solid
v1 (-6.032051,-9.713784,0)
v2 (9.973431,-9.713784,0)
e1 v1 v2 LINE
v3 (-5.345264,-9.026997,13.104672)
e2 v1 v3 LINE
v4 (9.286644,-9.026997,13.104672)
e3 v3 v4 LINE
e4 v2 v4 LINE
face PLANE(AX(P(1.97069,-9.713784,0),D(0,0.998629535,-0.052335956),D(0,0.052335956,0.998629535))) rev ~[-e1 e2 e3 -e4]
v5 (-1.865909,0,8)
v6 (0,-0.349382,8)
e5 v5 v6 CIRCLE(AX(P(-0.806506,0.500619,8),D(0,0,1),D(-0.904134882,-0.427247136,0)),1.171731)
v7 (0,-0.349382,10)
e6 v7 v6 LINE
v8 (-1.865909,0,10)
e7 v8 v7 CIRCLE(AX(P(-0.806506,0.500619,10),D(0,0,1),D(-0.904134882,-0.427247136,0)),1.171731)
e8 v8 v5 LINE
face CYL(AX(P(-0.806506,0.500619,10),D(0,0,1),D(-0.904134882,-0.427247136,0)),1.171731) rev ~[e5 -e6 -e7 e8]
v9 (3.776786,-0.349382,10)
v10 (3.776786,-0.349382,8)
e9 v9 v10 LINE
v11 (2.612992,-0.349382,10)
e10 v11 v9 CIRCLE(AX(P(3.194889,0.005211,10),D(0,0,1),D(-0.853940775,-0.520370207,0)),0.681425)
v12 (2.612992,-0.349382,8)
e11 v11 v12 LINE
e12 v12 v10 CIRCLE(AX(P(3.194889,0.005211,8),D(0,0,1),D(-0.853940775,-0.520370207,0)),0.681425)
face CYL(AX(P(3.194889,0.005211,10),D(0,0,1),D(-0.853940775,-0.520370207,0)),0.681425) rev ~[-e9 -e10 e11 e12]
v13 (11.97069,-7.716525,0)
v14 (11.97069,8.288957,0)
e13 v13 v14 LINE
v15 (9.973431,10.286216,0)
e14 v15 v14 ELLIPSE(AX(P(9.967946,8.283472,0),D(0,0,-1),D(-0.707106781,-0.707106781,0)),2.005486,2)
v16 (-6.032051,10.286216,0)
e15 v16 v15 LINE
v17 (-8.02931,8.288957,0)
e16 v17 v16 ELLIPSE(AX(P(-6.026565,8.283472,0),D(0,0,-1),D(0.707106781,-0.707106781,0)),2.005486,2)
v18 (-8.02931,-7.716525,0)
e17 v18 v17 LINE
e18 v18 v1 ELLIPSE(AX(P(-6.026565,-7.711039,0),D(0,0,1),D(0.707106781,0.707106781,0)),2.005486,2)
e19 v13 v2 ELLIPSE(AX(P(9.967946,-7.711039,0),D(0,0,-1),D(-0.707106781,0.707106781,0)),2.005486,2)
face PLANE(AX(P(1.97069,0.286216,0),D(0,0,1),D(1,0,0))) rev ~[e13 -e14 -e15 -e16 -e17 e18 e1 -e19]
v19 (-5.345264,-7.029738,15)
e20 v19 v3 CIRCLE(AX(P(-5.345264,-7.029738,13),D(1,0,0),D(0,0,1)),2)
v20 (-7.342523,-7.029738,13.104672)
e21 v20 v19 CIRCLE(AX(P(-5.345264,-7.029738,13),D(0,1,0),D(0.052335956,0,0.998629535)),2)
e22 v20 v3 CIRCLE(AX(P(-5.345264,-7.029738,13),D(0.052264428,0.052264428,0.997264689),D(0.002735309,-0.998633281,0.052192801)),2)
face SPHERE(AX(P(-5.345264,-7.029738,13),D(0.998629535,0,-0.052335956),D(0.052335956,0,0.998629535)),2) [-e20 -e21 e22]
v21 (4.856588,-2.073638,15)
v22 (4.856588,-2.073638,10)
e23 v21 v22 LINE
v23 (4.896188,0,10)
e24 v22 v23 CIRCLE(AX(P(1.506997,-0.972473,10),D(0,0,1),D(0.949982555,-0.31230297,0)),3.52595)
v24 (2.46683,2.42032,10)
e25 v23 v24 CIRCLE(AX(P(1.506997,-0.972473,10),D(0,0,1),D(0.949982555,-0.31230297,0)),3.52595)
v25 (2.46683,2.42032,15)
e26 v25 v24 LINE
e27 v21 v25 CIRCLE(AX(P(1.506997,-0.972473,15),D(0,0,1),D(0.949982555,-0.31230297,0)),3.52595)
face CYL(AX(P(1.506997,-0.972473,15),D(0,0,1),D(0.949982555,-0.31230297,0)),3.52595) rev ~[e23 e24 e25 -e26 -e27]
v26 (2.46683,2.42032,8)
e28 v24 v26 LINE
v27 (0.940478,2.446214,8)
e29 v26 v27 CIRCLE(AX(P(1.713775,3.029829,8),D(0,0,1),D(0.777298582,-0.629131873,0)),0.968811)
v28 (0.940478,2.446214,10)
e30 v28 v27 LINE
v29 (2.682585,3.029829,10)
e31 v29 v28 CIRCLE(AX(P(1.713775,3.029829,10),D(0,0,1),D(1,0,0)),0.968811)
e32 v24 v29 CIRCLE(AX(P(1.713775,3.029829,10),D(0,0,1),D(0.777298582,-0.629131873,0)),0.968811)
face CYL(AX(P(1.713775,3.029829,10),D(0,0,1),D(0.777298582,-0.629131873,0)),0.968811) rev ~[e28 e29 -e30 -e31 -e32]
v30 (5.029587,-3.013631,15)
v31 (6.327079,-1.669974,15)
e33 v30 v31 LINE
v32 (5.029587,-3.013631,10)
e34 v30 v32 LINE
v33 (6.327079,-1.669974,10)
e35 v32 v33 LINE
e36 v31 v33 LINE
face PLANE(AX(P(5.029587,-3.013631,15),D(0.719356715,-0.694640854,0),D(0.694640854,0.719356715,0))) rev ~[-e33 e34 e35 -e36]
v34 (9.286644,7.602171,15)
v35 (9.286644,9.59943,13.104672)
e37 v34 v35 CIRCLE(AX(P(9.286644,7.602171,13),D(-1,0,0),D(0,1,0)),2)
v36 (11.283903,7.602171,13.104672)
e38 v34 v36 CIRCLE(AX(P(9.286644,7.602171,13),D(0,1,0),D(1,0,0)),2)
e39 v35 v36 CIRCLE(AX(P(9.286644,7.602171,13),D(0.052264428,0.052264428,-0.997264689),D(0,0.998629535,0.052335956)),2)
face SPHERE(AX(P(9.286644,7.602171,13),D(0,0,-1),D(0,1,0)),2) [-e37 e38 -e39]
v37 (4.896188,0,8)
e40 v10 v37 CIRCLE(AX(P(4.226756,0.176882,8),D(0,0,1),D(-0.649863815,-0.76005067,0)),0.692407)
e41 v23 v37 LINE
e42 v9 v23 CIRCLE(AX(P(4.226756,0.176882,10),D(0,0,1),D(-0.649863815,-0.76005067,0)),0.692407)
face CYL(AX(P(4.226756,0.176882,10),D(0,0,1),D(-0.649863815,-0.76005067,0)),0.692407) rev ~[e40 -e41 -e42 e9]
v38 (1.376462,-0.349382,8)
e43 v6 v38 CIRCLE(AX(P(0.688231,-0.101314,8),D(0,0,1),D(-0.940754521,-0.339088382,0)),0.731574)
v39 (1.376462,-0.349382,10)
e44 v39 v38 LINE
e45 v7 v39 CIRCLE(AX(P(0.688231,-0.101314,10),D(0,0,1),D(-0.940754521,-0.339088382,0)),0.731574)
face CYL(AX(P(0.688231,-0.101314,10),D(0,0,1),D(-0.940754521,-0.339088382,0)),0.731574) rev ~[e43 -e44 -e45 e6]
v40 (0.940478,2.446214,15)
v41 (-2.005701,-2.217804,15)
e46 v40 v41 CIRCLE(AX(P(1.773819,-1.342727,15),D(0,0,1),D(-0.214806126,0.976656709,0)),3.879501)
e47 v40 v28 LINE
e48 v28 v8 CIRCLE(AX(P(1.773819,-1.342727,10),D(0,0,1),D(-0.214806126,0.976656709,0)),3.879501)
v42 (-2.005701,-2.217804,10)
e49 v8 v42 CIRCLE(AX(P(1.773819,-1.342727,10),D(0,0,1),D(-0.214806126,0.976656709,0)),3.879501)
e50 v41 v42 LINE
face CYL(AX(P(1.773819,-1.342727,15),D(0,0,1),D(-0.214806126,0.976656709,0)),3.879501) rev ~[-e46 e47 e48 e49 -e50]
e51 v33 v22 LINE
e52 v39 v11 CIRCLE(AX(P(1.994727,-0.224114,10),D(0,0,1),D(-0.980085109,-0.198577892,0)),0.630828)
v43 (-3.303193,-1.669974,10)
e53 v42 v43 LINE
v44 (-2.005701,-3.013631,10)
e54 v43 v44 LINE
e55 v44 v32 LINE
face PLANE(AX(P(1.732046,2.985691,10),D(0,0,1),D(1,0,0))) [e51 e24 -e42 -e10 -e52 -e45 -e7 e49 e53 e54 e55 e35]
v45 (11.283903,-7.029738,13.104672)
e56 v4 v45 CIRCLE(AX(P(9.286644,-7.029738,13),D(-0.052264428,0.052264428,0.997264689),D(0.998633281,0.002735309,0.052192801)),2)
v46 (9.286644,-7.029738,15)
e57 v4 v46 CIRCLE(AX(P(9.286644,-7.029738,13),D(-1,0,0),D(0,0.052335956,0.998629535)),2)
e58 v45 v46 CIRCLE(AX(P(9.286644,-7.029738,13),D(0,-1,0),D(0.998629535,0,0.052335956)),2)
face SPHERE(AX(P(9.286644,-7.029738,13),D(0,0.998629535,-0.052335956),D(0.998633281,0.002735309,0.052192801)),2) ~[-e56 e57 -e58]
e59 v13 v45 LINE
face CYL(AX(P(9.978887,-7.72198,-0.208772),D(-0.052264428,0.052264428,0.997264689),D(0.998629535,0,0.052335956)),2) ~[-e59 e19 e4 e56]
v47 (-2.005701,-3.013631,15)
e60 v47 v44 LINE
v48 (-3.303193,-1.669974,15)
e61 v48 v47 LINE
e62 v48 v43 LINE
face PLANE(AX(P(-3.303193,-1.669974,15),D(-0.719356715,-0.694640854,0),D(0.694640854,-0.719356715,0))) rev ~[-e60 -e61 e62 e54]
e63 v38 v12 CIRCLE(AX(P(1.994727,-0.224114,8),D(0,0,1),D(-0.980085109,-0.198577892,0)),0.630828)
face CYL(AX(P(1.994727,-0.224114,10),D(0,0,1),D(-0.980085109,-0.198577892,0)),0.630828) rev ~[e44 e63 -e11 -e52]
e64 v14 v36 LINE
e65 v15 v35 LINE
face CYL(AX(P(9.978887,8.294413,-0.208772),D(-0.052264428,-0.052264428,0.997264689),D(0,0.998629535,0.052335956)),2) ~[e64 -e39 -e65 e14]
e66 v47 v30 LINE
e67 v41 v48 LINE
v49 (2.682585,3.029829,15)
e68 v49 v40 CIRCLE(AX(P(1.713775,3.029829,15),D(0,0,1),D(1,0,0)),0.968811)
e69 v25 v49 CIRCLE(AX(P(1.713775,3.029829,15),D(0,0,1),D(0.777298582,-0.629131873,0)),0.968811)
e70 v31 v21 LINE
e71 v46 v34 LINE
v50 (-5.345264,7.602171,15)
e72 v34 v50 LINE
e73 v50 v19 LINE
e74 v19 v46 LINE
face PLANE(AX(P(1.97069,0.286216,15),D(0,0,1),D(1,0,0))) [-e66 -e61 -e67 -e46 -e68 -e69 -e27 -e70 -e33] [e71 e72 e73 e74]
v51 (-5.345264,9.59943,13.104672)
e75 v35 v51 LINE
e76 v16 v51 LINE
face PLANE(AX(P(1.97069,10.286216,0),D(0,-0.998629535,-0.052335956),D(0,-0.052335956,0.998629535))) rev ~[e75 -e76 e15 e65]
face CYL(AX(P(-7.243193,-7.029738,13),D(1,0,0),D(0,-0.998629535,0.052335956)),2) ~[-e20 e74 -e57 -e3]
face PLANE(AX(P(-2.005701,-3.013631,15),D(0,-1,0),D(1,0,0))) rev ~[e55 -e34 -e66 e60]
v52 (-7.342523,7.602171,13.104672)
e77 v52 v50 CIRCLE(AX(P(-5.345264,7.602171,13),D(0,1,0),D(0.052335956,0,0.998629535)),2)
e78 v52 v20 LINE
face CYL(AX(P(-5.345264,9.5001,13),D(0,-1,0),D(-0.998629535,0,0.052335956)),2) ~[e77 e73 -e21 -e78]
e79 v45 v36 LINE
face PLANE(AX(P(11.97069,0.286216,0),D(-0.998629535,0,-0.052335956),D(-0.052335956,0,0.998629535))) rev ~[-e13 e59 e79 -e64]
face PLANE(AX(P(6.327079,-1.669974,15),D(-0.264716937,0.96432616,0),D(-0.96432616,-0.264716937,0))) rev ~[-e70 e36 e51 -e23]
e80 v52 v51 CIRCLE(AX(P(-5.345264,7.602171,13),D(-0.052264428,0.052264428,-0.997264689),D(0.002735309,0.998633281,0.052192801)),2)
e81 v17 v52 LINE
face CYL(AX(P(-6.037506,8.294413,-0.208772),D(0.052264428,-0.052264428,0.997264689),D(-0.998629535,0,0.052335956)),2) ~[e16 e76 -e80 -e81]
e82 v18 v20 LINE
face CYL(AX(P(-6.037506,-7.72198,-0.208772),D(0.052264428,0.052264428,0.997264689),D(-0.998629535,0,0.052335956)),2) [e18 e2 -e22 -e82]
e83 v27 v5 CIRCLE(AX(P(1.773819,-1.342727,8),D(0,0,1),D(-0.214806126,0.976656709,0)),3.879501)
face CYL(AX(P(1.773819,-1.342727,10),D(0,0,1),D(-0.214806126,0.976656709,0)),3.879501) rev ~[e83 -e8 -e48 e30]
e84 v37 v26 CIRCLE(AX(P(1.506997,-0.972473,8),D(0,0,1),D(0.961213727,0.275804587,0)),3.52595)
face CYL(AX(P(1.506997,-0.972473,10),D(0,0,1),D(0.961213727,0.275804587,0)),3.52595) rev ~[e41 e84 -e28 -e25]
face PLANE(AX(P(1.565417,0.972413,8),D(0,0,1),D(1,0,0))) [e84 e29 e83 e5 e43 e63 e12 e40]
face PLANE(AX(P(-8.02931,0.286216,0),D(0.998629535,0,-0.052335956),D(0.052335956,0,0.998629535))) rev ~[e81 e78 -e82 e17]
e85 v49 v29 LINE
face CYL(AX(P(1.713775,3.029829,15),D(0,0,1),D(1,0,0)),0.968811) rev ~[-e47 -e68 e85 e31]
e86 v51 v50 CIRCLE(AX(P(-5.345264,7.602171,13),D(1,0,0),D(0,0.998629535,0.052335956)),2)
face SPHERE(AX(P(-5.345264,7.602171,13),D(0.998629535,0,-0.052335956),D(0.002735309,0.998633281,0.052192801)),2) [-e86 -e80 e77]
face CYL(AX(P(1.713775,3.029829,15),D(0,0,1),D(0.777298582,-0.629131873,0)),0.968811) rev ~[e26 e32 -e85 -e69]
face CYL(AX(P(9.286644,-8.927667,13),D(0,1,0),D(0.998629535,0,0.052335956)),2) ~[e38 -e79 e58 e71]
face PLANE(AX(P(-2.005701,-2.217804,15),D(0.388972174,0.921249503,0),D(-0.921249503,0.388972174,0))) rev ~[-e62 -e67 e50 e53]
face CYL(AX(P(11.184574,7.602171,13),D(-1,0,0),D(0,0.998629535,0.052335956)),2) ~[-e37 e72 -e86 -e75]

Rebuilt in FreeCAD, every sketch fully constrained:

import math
import FreeCAD as App
import Part
import Sketcher
from FreeCAD import Vector


def edges_at(feature, points):
    """Names of the edges that pass closest to the given points."""
    edges = feature.Shape.Edges
    near = lambda p: min(range(len(edges)), key=lambda i: edges[i].distToShape(Part.Vertex(*p))[0])
    return sorted({f"Edge{near(p) + 1}" for p in points})

doc = App.newDocument("Part")
params = doc.addObject("Spreadsheet::Sheet", "Params")
for row, (alias, value) in enumerate([
    ("sketch1_width", "20 mm"),
    ("pad1_length", "15 mm"),
    ("pad1_taper", "-3 deg"),
    ("fillet_radius", "2 mm"),
    ("pocket1_length", "5 mm"),
    ("sketch3_height", "0.850001 mm"),
    ("pocket2_length", "2 mm"),
], start=1):
    params.set(f"A{row}", alias)
    params.set(f"B{row}", "=" + value)
    params.setAlias(f"B{row}", alias)

body = doc.addObject("PartDesign::Body", "Body")

# Sketch on XY plane
sketch1 = body.newObject("Sketcher::SketchObject", "Sketch")
sketch1.AttachmentSupport = (doc.getObject("XY_Plane"), [""])
sketch1.MapMode = "FlatFace"
sketch1.addGeometry([
    Part.LineSegment(Vector(-8, 10, 0), Vector(-8, -10, 0)),
    Part.LineSegment(Vector(-8, -10, 0), Vector(12, -10, 0)),
    Part.LineSegment(Vector(12, -10, 0), Vector(12, 10, 0)),
    Part.LineSegment(Vector(12, 10, 0), Vector(-8, 10, 0)),
], False)
sketch1.addConstraint([
    Sketcher.Constraint("Coincident", 0, 2, 1, 1),
    Sketcher.Constraint("Coincident", 1, 2, 2, 1),
    Sketcher.Constraint("Coincident", 2, 2, 3, 1),
    Sketcher.Constraint("Coincident", 3, 2, 0, 1),
    Sketcher.Constraint("Vertical", 0),
    Sketcher.Constraint("Horizontal", 1),
    Sketcher.Constraint("Vertical", 2),
    Sketcher.Constraint("Horizontal", 3),
    Sketcher.Constraint("Equal", 3, 0),
    Sketcher.Constraint("DistanceX", 1, 1, 1, 2, 20.0),
    Sketcher.Constraint("DistanceX", 0, 2, -1, 1, 8.02931),
    Sketcher.Constraint("DistanceY", 0, 2, -1, 1, 9.713784),
])
sketch1.setExpression("Constraints[9]", "Params.sketch1_width")
pad1 = body.newObject("PartDesign::Pad", "Pad")
pad1.Profile = sketch1
pad1.setExpression("Length", "Params.pad1_length")
pad1.setExpression("TaperAngle", "Params.pad1_taper")
doc.recompute()

fillet = body.newObject("PartDesign::Fillet", "Fillet")
fillet.Base = (pad1, edges_at(pad1, [
    (11.578, 9.893, 7.5),
    (1.971, 9.5, 15),
    (-7.636, 9.893, 7.5),
    (11.185, 0.286, 15),
    (11.578, -9.321, 7.5),
    (1.971, -8.928, 15),
    (-7.243, 0.286, 15),
    (-7.636, -9.321, 7.5),
]))
fillet.setExpression("Radius", "Params.fillet_radius")

# Sketch on XY plane
sketch2 = body.newObject("Sketcher::SketchObject", "Sketch001")
sketch2.AttachmentSupport = (doc.getObject("XY_Plane"), [""])
sketch2.MapMode = "FlatFace"
sketch2.AttachmentOffset = App.Placement(Vector(0, 0, 15), App.Rotation())
sketch2.addGeometry([
    Part.ArcOfCircle(Part.Circle(Vector(1.7, 3, 0), Vector(0, 0, 1), 1), math.radians(-39), math.radians(0)),  # 0
    Part.ArcOfCircle(Part.Circle(Vector(1.7, 3, 0), Vector(0, 0, 1), 1), math.radians(0), math.radians(217)),  # 1
    Part.ArcOfCircle(Part.Circle(Vector(1.8, -1.3, 0), Vector(0, 0, 1), 3.9), math.radians(102), math.radians(193)),  # 2
    Part.LineSegment(Vector(-2, -2.2, 0), Vector(-3.3, -1.7, 0)),  # 3
    Part.LineSegment(Vector(-3.3, -1.7, 0), Vector(-2, -3, 0)),  # 4
    Part.LineSegment(Vector(-2, -3, 0), Vector(5, -3, 0)),  # 5
    Part.LineSegment(Vector(5, -3, 0), Vector(6.3, -1.7, 0)),  # 6
    Part.LineSegment(Vector(6.3, -1.7, 0), Vector(4.9, -2.1, 0)),  # 7
    Part.ArcOfCircle(Part.Circle(Vector(1.5, -1, 0), Vector(0, 0, 1), 3.5), math.radians(-18), math.radians(74)),  # 8
], False)
sketch2.addConstraint([
    Sketcher.Constraint("Tangent", 0, 2, 1, 1),
    Sketcher.Constraint("Coincident", 1, 2, 2, 1),
    Sketcher.Constraint("Coincident", 2, 2, 3, 1),
    Sketcher.Constraint("Coincident", 3, 2, 4, 1),
    Sketcher.Constraint("Coincident", 4, 2, 5, 1),
    Sketcher.Constraint("Coincident", 5, 2, 6, 1),
    Sketcher.Constraint("Coincident", 6, 2, 7, 1),
    Sketcher.Constraint("Coincident", 7, 2, 8, 1),
    Sketcher.Constraint("Coincident", 8, 2, 0, 1),
    Sketcher.Constraint("Horizontal", 5),
    Sketcher.Constraint("Equal", 0, 1),
    Sketcher.Constraint("Horizontal", 1, 3, 0, 2),
    Sketcher.Constraint("Horizontal", 3, 2, 6, 2),
    Sketcher.Constraint("Vertical", 2, 2, 4, 2),
    Sketcher.Constraint("Equal", 4, 6),
    Sketcher.Constraint("Radius", 2, 3.879501),
    Sketcher.Constraint("Radius", 0, 0.968811),
    Sketcher.Constraint("Radius", 8, 3.52595),
    Sketcher.Constraint("DistanceX", 0, 2, 5, 2, 2.347002),
    Sketcher.Constraint("DistanceX", 7, 2, 5, 2, 0.172999),
    Sketcher.Constraint("DistanceX", 5, 1, 5, 2, 7.035288),
    Sketcher.Constraint("DistanceX", 2, 2, -1, 1, 2.005701),
    Sketcher.Constraint("DistanceX", 2, 2, 8, 3, 3.512699),
    Sketcher.Constraint("DistanceY", 3, 2, 8, 3, 0.6975),
    Sketcher.Constraint("Distance", 4, 1.86786),
    Sketcher.Constraint("Distance", 7, 1.524889),
    Sketcher.Constraint("DistanceY", -1, 1, 0, 3, 3.029829),
    Sketcher.Constraint("DistanceX", -1, 1, 2, 3, 1.773819),
    Sketcher.Constraint("DistanceY", 4, 2, -1, 1, 3.013631),
    Sketcher.Constraint("DistanceX", 1, 2, 8, 3, 0.566519),
])
pocket1 = body.newObject("PartDesign::Pocket", "Pocket")
pocket1.Profile = sketch2
pocket1.setExpression("Length", "Params.pocket1_length")

# Sketch on XY plane
sketch3 = body.newObject("Sketcher::SketchObject", "Sketch002")
sketch3.AttachmentSupport = (doc.getObject("XY_Plane"), [""])
sketch3.MapMode = "FlatFace"
sketch3.AttachmentOffset = App.Placement(Vector(0, 0, 10), App.Rotation())
sketch3.addGeometry([
    Part.ArcOfCircle(Part.Circle(Vector(1.8, -1.3, 0), Vector(0, 0, 1), 3.9), math.radians(102), math.radians(160)),  # 0
    Part.ArcOfCircle(Part.Circle(Vector(-0.8, 0.5, 0), Vector(0, 0, 1), 1.2), math.radians(-155), math.radians(-47)),  # 1
    Part.ArcOfCircle(Part.Circle(Vector(0.7, -0.1, 0), Vector(0, 0, 1), 0.7), math.radians(-160), math.radians(-20)),  # 2
    Part.ArcOfCircle(Part.Circle(Vector(2, -0.2, 0), Vector(0, 0, 1), 0.6), math.radians(-169), math.radians(-11)),  # 3
    Part.ArcOfCircle(Part.Circle(Vector(3.2, 0, 0), Vector(0, 0, 1), 0.7), math.radians(-149), math.radians(-31)),  # 4
    Part.ArcOfCircle(Part.Circle(Vector(4.2, 0.2, 0), Vector(0, 0, 1), 0.7), math.radians(-131), math.radians(-15)),  # 5
    Part.ArcOfCircle(Part.Circle(Vector(1.5, -1, 0), Vector(0, 0, 1), 3.5), math.radians(16), math.radians(74)),  # 6
    Part.ArcOfCircle(Part.Circle(Vector(1.7, 3, 0), Vector(0, 0, 1), 1), math.radians(-39), math.radians(217)),  # 7
], False)
sketch3.addConstraint([
    Sketcher.Constraint("Coincident", 0, 2, 1, 1),
    Sketcher.Constraint("Coincident", 1, 2, 2, 1),
    Sketcher.Constraint("Coincident", 2, 2, 3, 1),
    Sketcher.Constraint("Coincident", 3, 2, 4, 1),
    Sketcher.Constraint("Coincident", 4, 2, 5, 1),
    Sketcher.Constraint("Coincident", 5, 2, 6, 1),
    Sketcher.Constraint("Coincident", 6, 2, 7, 1),
    Sketcher.Constraint("Coincident", 7, 2, 0, 1),
    Sketcher.Constraint("PointOnObject", 0, 2, -1),
    Sketcher.Constraint("PointOnObject", 1, 2, -2),
    Sketcher.Constraint("PointOnObject", 5, 2, -1),
    Sketcher.Constraint("Horizontal", 1, 2, 2, 2),
    Sketcher.Constraint("Horizontal", 2, 2, 3, 2),
    Sketcher.Constraint("Horizontal", 3, 2, 4, 2),
    Sketcher.Constraint("Radius", 0, 3.879501),
    Sketcher.Constraint("Radius", 1, 1.171731),
    Sketcher.Constraint("Radius", 6, 3.52595),
    Sketcher.Constraint("Radius", 7, 0.968811),
    Sketcher.Constraint("DistanceY", 1, 2, 1, 3, 0.850001),
    Sketcher.Constraint("Radius", 2, 0.731574),
    Sketcher.Constraint("Radius", 3, 0.630828),
    Sketcher.Constraint("Radius", 4, 0.681425),
    Sketcher.Constraint("Radius", 5, 0.692407),
    Sketcher.Constraint("DistanceY", 3, 3, 2, 3, 0.1228),
    Sketcher.Constraint("DistanceX", 4, 3, 5, 2, 1.701299),
    Sketcher.Constraint("DistanceY", 3, 2, 6, 2, 2.769702),
    Sketcher.Constraint("DistanceX", -1, 1, 0, 3, 1.773819),
    Sketcher.Constraint("DistanceY", -1, 1, 1, 3, 0.500619),
    Sketcher.Constraint("DistanceX", -1, 1, 2, 3, 0.688231),
    Sketcher.Constraint("DistanceX", -1, 1, 4, 3, 3.194889),
    Sketcher.Constraint("DistanceY", -1, 1, 7, 3, 3.029829),
    Sketcher.Constraint("DistanceX", -1, 1, 6, 2, 2.46683),
])
sketch3.setExpression("Constraints[18]", "Params.sketch3_height")
pocket2 = body.newObject("PartDesign::Pocket", "Pocket001")
pocket2.Profile = sketch3
pocket2.setExpression("Length", "Params.pocket2_length")

doc.recompute()
